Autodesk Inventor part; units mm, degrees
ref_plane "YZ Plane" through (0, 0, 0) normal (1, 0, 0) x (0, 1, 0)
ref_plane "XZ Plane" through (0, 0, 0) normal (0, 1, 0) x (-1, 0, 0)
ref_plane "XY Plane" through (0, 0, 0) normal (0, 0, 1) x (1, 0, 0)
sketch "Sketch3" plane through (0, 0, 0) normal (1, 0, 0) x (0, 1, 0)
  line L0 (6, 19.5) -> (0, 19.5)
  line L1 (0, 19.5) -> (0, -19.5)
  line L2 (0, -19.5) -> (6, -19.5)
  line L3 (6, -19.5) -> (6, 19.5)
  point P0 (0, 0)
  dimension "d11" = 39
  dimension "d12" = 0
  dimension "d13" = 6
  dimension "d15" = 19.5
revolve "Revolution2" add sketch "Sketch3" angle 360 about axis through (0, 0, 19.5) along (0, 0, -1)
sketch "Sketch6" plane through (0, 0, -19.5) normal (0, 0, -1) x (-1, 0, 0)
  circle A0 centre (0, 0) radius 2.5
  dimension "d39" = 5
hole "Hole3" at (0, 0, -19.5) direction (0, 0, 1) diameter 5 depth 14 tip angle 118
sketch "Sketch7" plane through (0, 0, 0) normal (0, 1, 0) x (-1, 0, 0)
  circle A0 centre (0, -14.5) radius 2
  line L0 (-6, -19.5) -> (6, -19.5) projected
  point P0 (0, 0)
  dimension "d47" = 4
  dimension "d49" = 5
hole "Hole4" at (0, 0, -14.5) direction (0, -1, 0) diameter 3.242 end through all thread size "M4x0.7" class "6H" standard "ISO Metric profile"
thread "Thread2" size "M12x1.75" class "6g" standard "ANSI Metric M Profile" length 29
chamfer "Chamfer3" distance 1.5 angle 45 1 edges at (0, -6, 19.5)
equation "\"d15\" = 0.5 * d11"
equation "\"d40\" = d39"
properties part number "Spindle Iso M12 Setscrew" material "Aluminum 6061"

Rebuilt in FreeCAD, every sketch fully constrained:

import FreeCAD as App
import Part
import Sketcher

V = App.Vector
Q = App.Units.Quantity


def edges_at(feature, points):
    """Names of the edges that pass closest to the given points."""
    edges = feature.Shape.Edges
    near = lambda p: min(range(len(edges)), key=lambda i: edges[i].distToShape(Part.Vertex(*p))[0])
    return sorted({f"Edge{near(p) + 1}" for p in points})

doc = App.newDocument("Part")
body = doc.addObject("PartDesign::Body", "Body")

# Sketch on YZ plane
sketch1 = body.newObject("Sketcher::SketchObject", "Sketch")
sketch1.AttachmentSupport = (doc.getObject("YZ_Plane"), [""])
sketch1.MapMode = "FlatFace"
sketch1.addGeometry([
    Part.LineSegment(V(6, -19.5, 0), V(6, 19.5, 0)),
    Part.LineSegment(V(6, 19.5, 0), V(0, 19.5, 0)),
    Part.LineSegment(V(0, 19.5, 0), V(0, -19.5, 0)),
    Part.LineSegment(V(0, -19.5, 0), V(6, -19.5, 0)),
], False)
sketch1.addConstraint([
    Sketcher.Constraint("Coincident", 0, 2, 1, 1),
    Sketcher.Constraint("Coincident", 1, 2, 2, 1),
    Sketcher.Constraint("Coincident", 2, 2, 3, 1),
    Sketcher.Constraint("Coincident", 3, 2, 0, 1),
    Sketcher.Constraint("Vertical", 0),
    Sketcher.Constraint("Horizontal", 1),
    Sketcher.Constraint("Vertical", 2),
    Sketcher.Constraint("Horizontal", 3),
    Sketcher.Constraint("Symmetric", 1, 2, 2, 2, -1, 1),
    Sketcher.Constraint("DistanceX", 1, 2, 1, 1, Q("6 mm")),
    Sketcher.Constraint("DistanceY", 0, 1, 0, 2, Q("39 mm")),
])
revolution = body.newObject("PartDesign::Revolution", "Revolution")
revolution.Profile = sketch1
revolution.ReferenceAxis = (sketch1, ["V_Axis"])
revolution.Angle = 360

# Sketch on XY plane
sketch2 = body.newObject("Sketcher::SketchObject", "Sketch001")
sketch2.AttachmentSupport = (doc.getObject("XY_Plane"), [""])
sketch2.MapMode = "FlatFace"
sketch2.AttachmentOffset = App.Placement(V(0, 0, -19.5), App.Rotation())
sketch2.addGeometry(Part.Circle(V(0, 0, 0), V(0, 0, 1), 2.5), False)
sketch2.addConstraint([
    Sketcher.Constraint("Coincident", 0, 3, -1, 1),
    Sketcher.Constraint("Diameter", 0, Q("5 mm")),
])
doc.recompute()
hole = body.newObject("PartDesign::Hole", "Hole")
hole.Profile = sketch2
hole.ThreadType = "None"
hole.Diameter = 5
hole.DepthType = "Dimension"
hole.Depth = 14
hole.DrillPoint = "Angled"
hole.DrillPointAngle = 118
hole.Reversed = True

# Sketch on XZ plane
sketch3 = body.newObject("Sketcher::SketchObject", "Sketch002")
sketch3.AttachmentSupport = (doc.getObject("XZ_Plane"), [""])
sketch3.MapMode = "FlatFace"
sketch3.addGeometry(Part.Circle(V(0, -14.5, 0), V(0, 0, 1), 1.621), False)
sketch3.addConstraint([
    Sketcher.Constraint("PointOnObject", 0, 3, -2),
    Sketcher.Constraint("Diameter", 0, Q("3.242 mm")),
    Sketcher.Constraint("DistanceY", 0, 3, -1, 1, Q("14.5 mm")),
])
doc.recompute()
hole2 = body.newObject("PartDesign::Hole", "Hole001")
hole2.Profile = sketch3
hole2.ThreadType = "None"
hole2.Diameter = 3.242
hole2.DepthType = "ThroughAll"
hole2.Reversed = True
doc.recompute()

chamfer = body.newObject("PartDesign::Chamfer", "Chamfer")
chamfer.Base = (hole2, edges_at(hole2, [(0, -6, 19.5)]))
chamfer.Size = 1.5

doc.recompute()
